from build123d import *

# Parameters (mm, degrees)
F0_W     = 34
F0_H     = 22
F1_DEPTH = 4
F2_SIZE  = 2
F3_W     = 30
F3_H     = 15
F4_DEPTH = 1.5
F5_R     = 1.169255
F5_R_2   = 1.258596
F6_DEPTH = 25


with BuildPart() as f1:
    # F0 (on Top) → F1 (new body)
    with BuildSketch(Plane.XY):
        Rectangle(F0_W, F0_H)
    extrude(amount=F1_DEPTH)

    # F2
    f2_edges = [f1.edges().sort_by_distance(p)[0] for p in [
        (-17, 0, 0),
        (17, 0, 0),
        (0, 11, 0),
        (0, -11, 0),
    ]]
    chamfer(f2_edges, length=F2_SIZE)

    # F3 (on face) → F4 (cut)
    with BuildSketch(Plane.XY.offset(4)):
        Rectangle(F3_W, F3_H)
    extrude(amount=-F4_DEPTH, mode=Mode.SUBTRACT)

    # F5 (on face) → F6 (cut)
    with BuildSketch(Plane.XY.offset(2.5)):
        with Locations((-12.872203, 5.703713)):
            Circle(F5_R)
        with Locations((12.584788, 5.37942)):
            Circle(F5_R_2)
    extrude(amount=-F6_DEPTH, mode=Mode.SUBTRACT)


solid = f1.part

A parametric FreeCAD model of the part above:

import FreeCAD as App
import Part
import Sketcher
Q = App.Units.Quantity


def edges_at(feature, points):
    """Names of the edges that pass closest to the given points."""
    edges = feature.Shape.Edges
    near = lambda p: min(range(len(edges)), key=lambda i: edges[i].distToShape(Part.Vertex(*p))[0])
    return sorted({f"Edge{near(p) + 1}" for p in points})

doc = App.newDocument("Part")
body = doc.addObject("PartDesign::Body", "Body")

# Sketch on XY plane
sketch1 = body.newObject("Sketcher::SketchObject", "Sketch")
sketch1.AttachmentSupport = (doc.getObject("XY_Plane"), [""])
sketch1.MapMode = "FlatFace"
sketch1.addGeometry([
    Part.LineSegment(App.Vector(-17, 11, 0), App.Vector(-17, -11, 0)),
    Part.LineSegment(App.Vector(-17, -11, 0), App.Vector(17, -11, 0)),
    Part.LineSegment(App.Vector(17, -11, 0), App.Vector(17, 11, 0)),
    Part.LineSegment(App.Vector(17, 11, 0), App.Vector(-17, 11, 0)),
], False)
sketch1.addConstraint([
    Sketcher.Constraint("Coincident", 0, 2, 1, 1),
    Sketcher.Constraint("Coincident", 1, 2, 2, 1),
    Sketcher.Constraint("Coincident", 2, 2, 3, 1),
    Sketcher.Constraint("Coincident", 3, 2, 0, 1),
    Sketcher.Constraint("Vertical", 0),
    Sketcher.Constraint("Horizontal", 1),
    Sketcher.Constraint("Vertical", 2),
    Sketcher.Constraint("Horizontal", 3),
    Sketcher.Constraint("Symmetric", 0, 2, 2, 2, -1, 1),
    Sketcher.Constraint("DistanceX", 1, 1, 1, 2, Q("34 mm")),
    Sketcher.Constraint("DistanceY", 0, 2, 0, 1, Q("22 mm")),
])
pad1 = body.newObject("PartDesign::Pad", "Pad")
pad1.Profile = sketch1
pad1.Length = 4
doc.recompute()

chamfer = body.newObject("PartDesign::Chamfer", "Chamfer")
chamfer.Base = (pad1, edges_at(pad1, [
    (-17, 0, 0),
    (17, 0, 0),
    (0, 11, 0),
    (0, -11, 0),
]))
chamfer.Size = 2

# Sketch on XY plane
sketch2 = body.newObject("Sketcher::SketchObject", "Sketch001")
sketch2.AttachmentSupport = (doc.getObject("XY_Plane"), [""])
sketch2.MapMode = "FlatFace"
sketch2.AttachmentOffset = App.Placement(App.Vector(0, 0, 4), App.Rotation())
sketch2.addGeometry([
    Part.LineSegment(App.Vector(-15, 7.5, 0), App.Vector(-15, -7.5, 0)),
    Part.LineSegment(App.Vector(-15, -7.5, 0), App.Vector(15, -7.5, 0)),
    Part.LineSegment(App.Vector(15, -7.5, 0), App.Vector(15, 7.5, 0)),
    Part.LineSegment(App.Vector(15, 7.5, 0), App.Vector(-15, 7.5, 0)),
], False)
sketch2.addConstraint([
    Sketcher.Constraint("Coincident", 0, 2, 1, 1),
    Sketcher.Constraint("Coincident", 1, 2, 2, 1),
    Sketcher.Constraint("Coincident", 2, 2, 3, 1),
    Sketcher.Constraint("Coincident", 3, 2, 0, 1),
    Sketcher.Constraint("Vertical", 0),
    Sketcher.Constraint("Horizontal", 1),
    Sketcher.Constraint("Vertical", 2),
    Sketcher.Constraint("Horizontal", 3),
    Sketcher.Constraint("Symmetric", 0, 2, 2, 2, -1, 1),
    Sketcher.Constraint("DistanceX", 1, 1, 1, 2, Q("30 mm")),
    Sketcher.Constraint("DistanceY", 0, 2, 0, 1, Q("15 mm")),
])
pocket1 = body.newObject("PartDesign::Pocket", "Pocket")
pocket1.Profile = sketch2
pocket1.Length = 1.5

# Sketch on XY plane
sketch3 = body.newObject("Sketcher::SketchObject", "Sketch002")
sketch3.AttachmentSupport = (doc.getObject("XY_Plane"), [""])
sketch3.MapMode = "FlatFace"
sketch3.AttachmentOffset = App.Placement(App.Vector(0, 0, 2.5), App.Rotation())
sketch3.addGeometry([
    Part.Circle(App.Vector(-12.872203, 5.703713, 0), App.Vector(0, 0, 1), 1.169255),
    Part.Circle(App.Vector(12.584788, 5.37942, 0), App.Vector(0, 0, 1), 1.258596),
], False)
sketch3.addConstraint([
    Sketcher.Constraint("Diameter", 0, Q("2.33851 mm")),
    Sketcher.Constraint("Diameter", 1, Q("2.517192 mm")),
    Sketcher.Constraint("DistanceY", -1, 1, 1, 3, Q("5.37942 mm")),
    Sketcher.Constraint("DistanceX", 0, 3, 1, 3, Q("25.456991 mm")),
    Sketcher.Constraint("DistanceX", 0, 3, -1, 1, Q("12.872203 mm")),
    Sketcher.Constraint("DistanceY", -1, 1, 0, 3, Q("5.703713 mm")),
])
pocket2 = body.newObject("PartDesign::Pocket", "Pocket001")
pocket2.Profile = sketch3
pocket2.Length = 25

doc.recompute()
